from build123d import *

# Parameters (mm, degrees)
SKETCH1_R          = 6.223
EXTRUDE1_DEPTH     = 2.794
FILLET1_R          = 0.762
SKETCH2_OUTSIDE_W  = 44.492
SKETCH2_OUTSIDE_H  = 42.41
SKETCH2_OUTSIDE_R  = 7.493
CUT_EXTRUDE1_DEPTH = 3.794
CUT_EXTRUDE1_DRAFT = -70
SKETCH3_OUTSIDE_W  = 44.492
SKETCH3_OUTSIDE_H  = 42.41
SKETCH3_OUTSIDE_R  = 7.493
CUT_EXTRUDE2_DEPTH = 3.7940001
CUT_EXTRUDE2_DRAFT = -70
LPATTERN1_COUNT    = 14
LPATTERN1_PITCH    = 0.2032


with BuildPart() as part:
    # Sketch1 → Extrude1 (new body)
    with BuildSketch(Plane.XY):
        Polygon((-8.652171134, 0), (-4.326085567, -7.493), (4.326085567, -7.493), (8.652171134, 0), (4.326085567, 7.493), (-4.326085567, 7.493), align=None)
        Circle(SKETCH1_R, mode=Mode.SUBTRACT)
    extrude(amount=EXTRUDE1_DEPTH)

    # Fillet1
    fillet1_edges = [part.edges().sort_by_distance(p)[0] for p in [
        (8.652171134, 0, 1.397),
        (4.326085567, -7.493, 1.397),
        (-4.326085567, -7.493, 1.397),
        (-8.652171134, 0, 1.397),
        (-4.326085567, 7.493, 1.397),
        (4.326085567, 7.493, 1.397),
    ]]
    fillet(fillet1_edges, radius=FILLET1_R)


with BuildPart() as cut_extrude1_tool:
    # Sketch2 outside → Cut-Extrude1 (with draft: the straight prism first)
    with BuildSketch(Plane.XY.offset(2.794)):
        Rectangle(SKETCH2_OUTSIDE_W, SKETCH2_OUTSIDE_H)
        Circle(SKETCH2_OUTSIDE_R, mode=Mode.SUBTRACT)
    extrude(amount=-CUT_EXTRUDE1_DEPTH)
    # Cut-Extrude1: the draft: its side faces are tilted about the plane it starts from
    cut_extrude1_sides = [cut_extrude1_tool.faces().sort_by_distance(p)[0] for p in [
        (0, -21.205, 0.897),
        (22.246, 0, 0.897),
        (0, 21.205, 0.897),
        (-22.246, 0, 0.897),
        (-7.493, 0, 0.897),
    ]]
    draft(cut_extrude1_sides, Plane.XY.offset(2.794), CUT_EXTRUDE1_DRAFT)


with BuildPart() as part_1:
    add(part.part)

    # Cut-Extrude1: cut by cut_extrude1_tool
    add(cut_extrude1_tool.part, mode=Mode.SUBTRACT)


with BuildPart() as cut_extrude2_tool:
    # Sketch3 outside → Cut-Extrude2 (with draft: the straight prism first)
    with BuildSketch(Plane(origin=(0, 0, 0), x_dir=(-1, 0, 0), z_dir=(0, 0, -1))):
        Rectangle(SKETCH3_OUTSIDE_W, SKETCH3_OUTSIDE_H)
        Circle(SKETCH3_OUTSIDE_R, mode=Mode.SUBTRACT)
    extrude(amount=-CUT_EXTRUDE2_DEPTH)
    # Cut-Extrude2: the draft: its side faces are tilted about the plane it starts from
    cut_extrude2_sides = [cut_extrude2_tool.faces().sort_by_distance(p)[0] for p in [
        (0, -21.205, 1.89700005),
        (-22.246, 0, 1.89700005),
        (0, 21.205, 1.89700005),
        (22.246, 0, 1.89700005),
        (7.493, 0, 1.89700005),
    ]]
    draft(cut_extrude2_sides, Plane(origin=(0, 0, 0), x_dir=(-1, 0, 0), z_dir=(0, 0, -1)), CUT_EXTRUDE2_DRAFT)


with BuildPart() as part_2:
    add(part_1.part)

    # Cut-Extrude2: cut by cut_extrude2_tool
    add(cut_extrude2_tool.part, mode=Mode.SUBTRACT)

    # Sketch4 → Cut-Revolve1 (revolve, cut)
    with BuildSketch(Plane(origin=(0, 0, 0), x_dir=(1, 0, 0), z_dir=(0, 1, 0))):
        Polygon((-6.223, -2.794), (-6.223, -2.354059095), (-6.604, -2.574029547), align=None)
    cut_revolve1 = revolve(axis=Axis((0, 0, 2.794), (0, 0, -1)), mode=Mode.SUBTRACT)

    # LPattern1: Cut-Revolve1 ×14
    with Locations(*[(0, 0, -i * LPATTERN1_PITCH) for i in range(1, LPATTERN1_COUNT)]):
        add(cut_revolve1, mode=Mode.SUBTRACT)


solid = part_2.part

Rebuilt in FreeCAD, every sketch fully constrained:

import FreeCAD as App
import Part
import Sketcher
from FreeCAD import Vector
Q = App.Units.Quantity


def edges_at(feature, points):
    """Names of the edges that pass closest to the given points."""
    edges = feature.Shape.Edges
    near = lambda p: min(range(len(edges)), key=lambda i: edges[i].distToShape(Part.Vertex(*p))[0])
    return sorted({f"Edge{near(p) + 1}" for p in points})


def faces_at(feature, points):
    """Names of the faces that lie closest to the given points."""
    faces = feature.Shape.Faces
    near = lambda p: min(range(len(faces)), key=lambda i: faces[i].distToShape(Part.Vertex(*p))[0])
    return sorted({f"Face{near(p) + 1}" for p in points})

doc = App.newDocument("Part")
params = doc.addObject("Spreadsheet::Sheet", "Params")
for row, (alias, value) in enumerate([
    ("sketch1_diameter", "0.49 in"),
    ("pad1_length", "0.11 in"),
    ("fillet_radius", "0.03 in"),
    ("sketch2_diameter", "0.59 in"),
    ("pad2_length", "3.794 mm"),
    ("draft_angle", "70 deg"),
    ("sketch3_diameter", "0.59 in"),
    ("pad3_length", "3.794 mm"),
    ("draft2_angle", "70 deg"),
    ("groove_angle", "360 deg"),
    ("linearpattern_pitch", "0.008 in"),
], start=1):
    params.set(f"A{row}", alias)
    params.set(f"B{row}", "=" + value)
    params.setAlias(f"B{row}", alias)

body = doc.addObject("PartDesign::Body", "Body")

# Sketch on XY plane
sketch1 = body.newObject("Sketcher::SketchObject", "Sketch")
sketch1.AttachmentSupport = (doc.getObject("XY_Plane"), [""])
sketch1.MapMode = "FlatFace"
sketch1.addGeometry(Part.LineSegment(Vector(-9, 0, 0), Vector(-4, -7, 0)), False)
sketch1.addGeometry(Part.LineSegment(Vector(-4, -7, 0), Vector(4, -7, 0)), False)
sketch1.addGeometry(Part.LineSegment(Vector(4, -7, 0), Vector(9, 0, 0)), False)
sketch1.addGeometry(Part.LineSegment(Vector(9, 0, 0), Vector(4, 7, 0)), False)
sketch1.addGeometry(Part.LineSegment(Vector(4, 7, 0), Vector(-4, 7, 0)), False)
sketch1.addGeometry(Part.LineSegment(Vector(-4, 7, 0), Vector(-9, 0, 0)), False)
sketch1.addGeometry(Part.Circle(Vector(0, 0, 0), Vector(0, 0, 1), 6), False)
sketch1.addConstraint(Sketcher.Constraint("Coincident", 0, 2, 1, 1))
sketch1.addConstraint(Sketcher.Constraint("Coincident", 1, 2, 2, 1))
sketch1.addConstraint(Sketcher.Constraint("Coincident", 2, 2, 3, 1))
sketch1.addConstraint(Sketcher.Constraint("Coincident", 3, 2, 4, 1))
sketch1.addConstraint(Sketcher.Constraint("Coincident", 4, 2, 5, 1))
sketch1.addConstraint(Sketcher.Constraint("Coincident", 5, 2, 0, 1))
sketch1.addConstraint(Sketcher.Constraint("Horizontal", 1))
sketch1.addConstraint(Sketcher.Constraint("Horizontal", 4))
sketch1.addConstraint(Sketcher.Constraint("Coincident", 6, 3, -1, 1))
sketch1.addConstraint(Sketcher.Constraint("Symmetric", 0, 2, 3, 2, -1, 1))
sketch1.addConstraint(Sketcher.Constraint("Symmetric", 2, 2, 5, 2, -1, 1))
sketch1.addConstraint(Sketcher.Constraint("PointOnObject", 2, 2, -1))
sketch1.addConstraint(Sketcher.Constraint("Parallel", 2, 5))
sketch1.addConstraint(Sketcher.Constraint("Vertical", 1, 2, 3, 2))
sketch1.addConstraint(Sketcher.Constraint("Diameter", 6, Q("0.49 in")))
sketch1.addConstraint(Sketcher.Constraint("Angle", 0, Q("-60 deg")))
sketch1.addConstraint(Sketcher.Constraint("DistanceY", 1, 2, 3, 2, Q("0.59 in")))
sketch1.addConstraint(Sketcher.Constraint("DistanceX", 1, 1, 1, 2, Q("8.652171 mm")))
sketch1.setExpression("Constraints[14]", "Params.sketch1_diameter")
pad1 = body.newObject("PartDesign::Pad", "Pad")
pad1.Profile = sketch1
pad1.setExpression("Length", "Params.pad1_length")
doc.recompute()

fillet = body.newObject("PartDesign::Fillet", "Fillet")
fillet.Base = (pad1, edges_at(pad1, [
    (8.652, 0, 1.397),
    (4.326, -7.493, 1.397),
    (-4.326, -7.493, 1.397),
    (-8.652, 0, 1.397),
    (-4.326, 7.493, 1.397),
    (4.326, 7.493, 1.397),
]))
fillet.setExpression("Radius", "Params.fillet_radius")
body2 = doc.addObject("PartDesign::Body", "Body001")

# Sketch on XY plane
sketch2 = body2.newObject("Sketcher::SketchObject", "Sketch001")
sketch2.AttachmentSupport = (doc.getObject("XY_Plane001"), [""])
sketch2.MapMode = "FlatFace"
sketch2.AttachmentOffset = App.Placement(Vector(0, 0, 0.11 * 25.4), App.Rotation())
sketch2.addGeometry(Part.LineSegment(Vector(-22, 21, 0), Vector(-22, -21, 0)), False)
sketch2.addGeometry(Part.LineSegment(Vector(-22, -21, 0), Vector(22, -21, 0)), False)
sketch2.addGeometry(Part.LineSegment(Vector(22, -21, 0), Vector(22, 21, 0)), False)
sketch2.addGeometry(Part.LineSegment(Vector(22, 21, 0), Vector(-22, 21, 0)), False)
sketch2.addGeometry(Part.Circle(Vector(0, 0, 0), Vector(0, 0, 1), 7), False)
sketch2.addConstraint(Sketcher.Constraint("Coincident", 0, 2, 1, 1))
sketch2.addConstraint(Sketcher.Constraint("Coincident", 1, 2, 2, 1))
sketch2.addConstraint(Sketcher.Constraint("Coincident", 2, 2, 3, 1))
sketch2.addConstraint(Sketcher.Constraint("Coincident", 3, 2, 0, 1))
sketch2.addConstraint(Sketcher.Constraint("Vertical", 0))
sketch2.addConstraint(Sketcher.Constraint("Horizontal", 1))
sketch2.addConstraint(Sketcher.Constraint("Vertical", 2))
sketch2.addConstraint(Sketcher.Constraint("Horizontal", 3))
sketch2.addConstraint(Sketcher.Constraint("Coincident", 4, 3, -1, 1))
sketch2.addConstraint(Sketcher.Constraint("Symmetric", 0, 2, 2, 2, -1, 1))
sketch2.addConstraint(Sketcher.Constraint("Diameter", 4, Q("0.59 in")))
sketch2.addConstraint(Sketcher.Constraint("DistanceX", 1, 1, 1, 2, Q("44.492 mm")))
sketch2.addConstraint(Sketcher.Constraint("DistanceY", 0, 2, 0, 1, Q("42.41 mm")))
sketch2.setExpression("Constraints[10]", "Params.sketch2_diameter")
pad2 = body2.newObject("PartDesign::Pad", "Pad001")
pad2.Profile = sketch2
pad2.setExpression("Length", "Params.pad2_length")
pad2.Reversed = True
doc.recompute()

datumplane = body2.newObject("PartDesign::Plane", "DatumPlane")
datumplane.AttachmentSupport = (doc.getObject("XY_Plane001"), [""])
datumplane.MapMode = "FlatFace"
datumplane.AttachmentOffset = App.Placement(Vector(0, 0, 0.11 * 25.4), App.Rotation())
draft = body2.newObject("PartDesign::Draft", "Draft")
draft.Base = (pad2, faces_at(pad2, [
    (0, -21.205, 0.897),
    (22.246, 0, 0.897),
    (0, 21.205, 0.897),
    (-22.246, 0, 0.897),
    (-7.493, 0, 0.897),
]))
draft.NeutralPlane = (datumplane, [""])
draft.setExpression("Angle", "Params.draft_angle")
draft.Reversed = True
doc.recompute()

boolean = body.newObject("PartDesign::Boolean", "Boolean")
boolean.Type = "Cut"
boolean.addObjects([body2])
body3 = doc.addObject("PartDesign::Body", "Body002")

# Sketch on XY plane
sketch3 = body3.newObject("Sketcher::SketchObject", "Sketch002")
sketch3.AttachmentSupport = (doc.getObject("XY_Plane002"), [""])
sketch3.MapMode = "FlatFace"
sketch3.addGeometry(Part.LineSegment(Vector(22, 21, 0), Vector(22, -21, 0)), False)
sketch3.addGeometry(Part.LineSegment(Vector(22, -21, 0), Vector(-22, -21, 0)), False)
sketch3.addGeometry(Part.LineSegment(Vector(-22, -21, 0), Vector(-22, 21, 0)), False)
sketch3.addGeometry(Part.LineSegment(Vector(-22, 21, 0), Vector(22, 21, 0)), False)
sketch3.addGeometry(Part.Circle(Vector(0, 0, 0), Vector(0, 0, 1), 7), False)
sketch3.addConstraint(Sketcher.Constraint("Coincident", 0, 2, 1, 1))
sketch3.addConstraint(Sketcher.Constraint("Coincident", 1, 2, 2, 1))
sketch3.addConstraint(Sketcher.Constraint("Coincident", 2, 2, 3, 1))
sketch3.addConstraint(Sketcher.Constraint("Coincident", 3, 2, 0, 1))
sketch3.addConstraint(Sketcher.Constraint("Vertical", 0))
sketch3.addConstraint(Sketcher.Constraint("Horizontal", 1))
sketch3.addConstraint(Sketcher.Constraint("Vertical", 2))
sketch3.addConstraint(Sketcher.Constraint("Horizontal", 3))
sketch3.addConstraint(Sketcher.Constraint("Coincident", 4, 3, -1, 1))
sketch3.addConstraint(Sketcher.Constraint("Symmetric", 0, 2, 2, 2, -1, 1))
sketch3.addConstraint(Sketcher.Constraint("Diameter", 4, Q("0.59 in")))
sketch3.addConstraint(Sketcher.Constraint("DistanceX", 1, 2, 1, 1, Q("44.492 mm")))
sketch3.addConstraint(Sketcher.Constraint("DistanceY", 0, 2, 0, 1, Q("42.41 mm")))
sketch3.setExpression("Constraints[10]", "Params.sketch3_diameter")
pad3 = body3.newObject("PartDesign::Pad", "Pad002")
pad3.Profile = sketch3
pad3.setExpression("Length", "Params.pad3_length")
doc.recompute()

draft2 = body3.newObject("PartDesign::Draft", "Draft001")
draft2.Base = (pad3, faces_at(pad3, [
    (0, -21.205, 1.897),
    (-22.246, 0, 1.897),
    (0, 21.205, 1.897),
    (22.246, 0, 1.897),
    (7.493, 0, 1.897),
]))
draft2.NeutralPlane = (doc.getObject("XY_Plane002"), [""])
draft2.setExpression("Angle", "Params.draft2_angle")
draft2.Reversed = False
doc.recompute()

boolean2 = body.newObject("PartDesign::Boolean", "Boolean001")
boolean2.Type = "Cut"
boolean2.addObjects([body3])

# Sketch on XZ plane
sketch4 = body.newObject("Sketcher::SketchObject", "Sketch003")
sketch4.AttachmentSupport = (doc.getObject("XZ_Plane"), [""])
sketch4.MapMode = "FlatFace"
sketch4.addGeometry(Part.LineSegment(Vector(-6.22, 2.79, 0), Vector(-6.22, 2.35, 0)), False)
sketch4.addGeometry(Part.LineSegment(Vector(-6.22, 2.35, 0), Vector(-6.6, 2.57, 0)), False)
sketch4.addGeometry(Part.LineSegment(Vector(-6.6, 2.57, 0), Vector(-6.22, 2.79, 0)), False)
sketch4.addConstraint(Sketcher.Constraint("Coincident", 0, 2, 1, 1))
sketch4.addConstraint(Sketcher.Constraint("Coincident", 1, 2, 2, 1))
sketch4.addConstraint(Sketcher.Constraint("Coincident", 2, 2, 0, 1))
sketch4.addConstraint(Sketcher.Constraint("Vertical", 0))
sketch4.addConstraint(Sketcher.Constraint("Equal", 1, 2))
sketch4.addConstraint(Sketcher.Constraint("Angle", 1, Q("150 deg")))
sketch4.addConstraint(Sketcher.Constraint("DistanceX", 1, 2, -1, 1, Q("0.26 in")))
sketch4.addConstraint(Sketcher.Constraint("DistanceY", -1, 1, 2, 2, Q("0.11 in")))
sketch4.addConstraint(Sketcher.Constraint("DistanceX", 0, 2, -1, 1, Q("0.245 in")))
groove = body.newObject("PartDesign::Groove", "Groove")
groove.Profile = sketch4
groove.ReferenceAxis = (sketch4, ["V_Axis"])
groove.setExpression("Angle", "Params.groove_angle")
doc.recompute()

linearpattern = body.newObject("PartDesign::LinearPattern", "LinearPattern")
linearpattern.Originals = [groove]
linearpattern.Direction = (doc.getObject("Z_Axis"), [""])
linearpattern.Mode = "offset"
linearpattern.setExpression("Offset", "Params.linearpattern_pitch")
linearpattern.Occurrences = 14
linearpattern.Reversed = True
body.Tip = linearpattern

doc.recompute()
